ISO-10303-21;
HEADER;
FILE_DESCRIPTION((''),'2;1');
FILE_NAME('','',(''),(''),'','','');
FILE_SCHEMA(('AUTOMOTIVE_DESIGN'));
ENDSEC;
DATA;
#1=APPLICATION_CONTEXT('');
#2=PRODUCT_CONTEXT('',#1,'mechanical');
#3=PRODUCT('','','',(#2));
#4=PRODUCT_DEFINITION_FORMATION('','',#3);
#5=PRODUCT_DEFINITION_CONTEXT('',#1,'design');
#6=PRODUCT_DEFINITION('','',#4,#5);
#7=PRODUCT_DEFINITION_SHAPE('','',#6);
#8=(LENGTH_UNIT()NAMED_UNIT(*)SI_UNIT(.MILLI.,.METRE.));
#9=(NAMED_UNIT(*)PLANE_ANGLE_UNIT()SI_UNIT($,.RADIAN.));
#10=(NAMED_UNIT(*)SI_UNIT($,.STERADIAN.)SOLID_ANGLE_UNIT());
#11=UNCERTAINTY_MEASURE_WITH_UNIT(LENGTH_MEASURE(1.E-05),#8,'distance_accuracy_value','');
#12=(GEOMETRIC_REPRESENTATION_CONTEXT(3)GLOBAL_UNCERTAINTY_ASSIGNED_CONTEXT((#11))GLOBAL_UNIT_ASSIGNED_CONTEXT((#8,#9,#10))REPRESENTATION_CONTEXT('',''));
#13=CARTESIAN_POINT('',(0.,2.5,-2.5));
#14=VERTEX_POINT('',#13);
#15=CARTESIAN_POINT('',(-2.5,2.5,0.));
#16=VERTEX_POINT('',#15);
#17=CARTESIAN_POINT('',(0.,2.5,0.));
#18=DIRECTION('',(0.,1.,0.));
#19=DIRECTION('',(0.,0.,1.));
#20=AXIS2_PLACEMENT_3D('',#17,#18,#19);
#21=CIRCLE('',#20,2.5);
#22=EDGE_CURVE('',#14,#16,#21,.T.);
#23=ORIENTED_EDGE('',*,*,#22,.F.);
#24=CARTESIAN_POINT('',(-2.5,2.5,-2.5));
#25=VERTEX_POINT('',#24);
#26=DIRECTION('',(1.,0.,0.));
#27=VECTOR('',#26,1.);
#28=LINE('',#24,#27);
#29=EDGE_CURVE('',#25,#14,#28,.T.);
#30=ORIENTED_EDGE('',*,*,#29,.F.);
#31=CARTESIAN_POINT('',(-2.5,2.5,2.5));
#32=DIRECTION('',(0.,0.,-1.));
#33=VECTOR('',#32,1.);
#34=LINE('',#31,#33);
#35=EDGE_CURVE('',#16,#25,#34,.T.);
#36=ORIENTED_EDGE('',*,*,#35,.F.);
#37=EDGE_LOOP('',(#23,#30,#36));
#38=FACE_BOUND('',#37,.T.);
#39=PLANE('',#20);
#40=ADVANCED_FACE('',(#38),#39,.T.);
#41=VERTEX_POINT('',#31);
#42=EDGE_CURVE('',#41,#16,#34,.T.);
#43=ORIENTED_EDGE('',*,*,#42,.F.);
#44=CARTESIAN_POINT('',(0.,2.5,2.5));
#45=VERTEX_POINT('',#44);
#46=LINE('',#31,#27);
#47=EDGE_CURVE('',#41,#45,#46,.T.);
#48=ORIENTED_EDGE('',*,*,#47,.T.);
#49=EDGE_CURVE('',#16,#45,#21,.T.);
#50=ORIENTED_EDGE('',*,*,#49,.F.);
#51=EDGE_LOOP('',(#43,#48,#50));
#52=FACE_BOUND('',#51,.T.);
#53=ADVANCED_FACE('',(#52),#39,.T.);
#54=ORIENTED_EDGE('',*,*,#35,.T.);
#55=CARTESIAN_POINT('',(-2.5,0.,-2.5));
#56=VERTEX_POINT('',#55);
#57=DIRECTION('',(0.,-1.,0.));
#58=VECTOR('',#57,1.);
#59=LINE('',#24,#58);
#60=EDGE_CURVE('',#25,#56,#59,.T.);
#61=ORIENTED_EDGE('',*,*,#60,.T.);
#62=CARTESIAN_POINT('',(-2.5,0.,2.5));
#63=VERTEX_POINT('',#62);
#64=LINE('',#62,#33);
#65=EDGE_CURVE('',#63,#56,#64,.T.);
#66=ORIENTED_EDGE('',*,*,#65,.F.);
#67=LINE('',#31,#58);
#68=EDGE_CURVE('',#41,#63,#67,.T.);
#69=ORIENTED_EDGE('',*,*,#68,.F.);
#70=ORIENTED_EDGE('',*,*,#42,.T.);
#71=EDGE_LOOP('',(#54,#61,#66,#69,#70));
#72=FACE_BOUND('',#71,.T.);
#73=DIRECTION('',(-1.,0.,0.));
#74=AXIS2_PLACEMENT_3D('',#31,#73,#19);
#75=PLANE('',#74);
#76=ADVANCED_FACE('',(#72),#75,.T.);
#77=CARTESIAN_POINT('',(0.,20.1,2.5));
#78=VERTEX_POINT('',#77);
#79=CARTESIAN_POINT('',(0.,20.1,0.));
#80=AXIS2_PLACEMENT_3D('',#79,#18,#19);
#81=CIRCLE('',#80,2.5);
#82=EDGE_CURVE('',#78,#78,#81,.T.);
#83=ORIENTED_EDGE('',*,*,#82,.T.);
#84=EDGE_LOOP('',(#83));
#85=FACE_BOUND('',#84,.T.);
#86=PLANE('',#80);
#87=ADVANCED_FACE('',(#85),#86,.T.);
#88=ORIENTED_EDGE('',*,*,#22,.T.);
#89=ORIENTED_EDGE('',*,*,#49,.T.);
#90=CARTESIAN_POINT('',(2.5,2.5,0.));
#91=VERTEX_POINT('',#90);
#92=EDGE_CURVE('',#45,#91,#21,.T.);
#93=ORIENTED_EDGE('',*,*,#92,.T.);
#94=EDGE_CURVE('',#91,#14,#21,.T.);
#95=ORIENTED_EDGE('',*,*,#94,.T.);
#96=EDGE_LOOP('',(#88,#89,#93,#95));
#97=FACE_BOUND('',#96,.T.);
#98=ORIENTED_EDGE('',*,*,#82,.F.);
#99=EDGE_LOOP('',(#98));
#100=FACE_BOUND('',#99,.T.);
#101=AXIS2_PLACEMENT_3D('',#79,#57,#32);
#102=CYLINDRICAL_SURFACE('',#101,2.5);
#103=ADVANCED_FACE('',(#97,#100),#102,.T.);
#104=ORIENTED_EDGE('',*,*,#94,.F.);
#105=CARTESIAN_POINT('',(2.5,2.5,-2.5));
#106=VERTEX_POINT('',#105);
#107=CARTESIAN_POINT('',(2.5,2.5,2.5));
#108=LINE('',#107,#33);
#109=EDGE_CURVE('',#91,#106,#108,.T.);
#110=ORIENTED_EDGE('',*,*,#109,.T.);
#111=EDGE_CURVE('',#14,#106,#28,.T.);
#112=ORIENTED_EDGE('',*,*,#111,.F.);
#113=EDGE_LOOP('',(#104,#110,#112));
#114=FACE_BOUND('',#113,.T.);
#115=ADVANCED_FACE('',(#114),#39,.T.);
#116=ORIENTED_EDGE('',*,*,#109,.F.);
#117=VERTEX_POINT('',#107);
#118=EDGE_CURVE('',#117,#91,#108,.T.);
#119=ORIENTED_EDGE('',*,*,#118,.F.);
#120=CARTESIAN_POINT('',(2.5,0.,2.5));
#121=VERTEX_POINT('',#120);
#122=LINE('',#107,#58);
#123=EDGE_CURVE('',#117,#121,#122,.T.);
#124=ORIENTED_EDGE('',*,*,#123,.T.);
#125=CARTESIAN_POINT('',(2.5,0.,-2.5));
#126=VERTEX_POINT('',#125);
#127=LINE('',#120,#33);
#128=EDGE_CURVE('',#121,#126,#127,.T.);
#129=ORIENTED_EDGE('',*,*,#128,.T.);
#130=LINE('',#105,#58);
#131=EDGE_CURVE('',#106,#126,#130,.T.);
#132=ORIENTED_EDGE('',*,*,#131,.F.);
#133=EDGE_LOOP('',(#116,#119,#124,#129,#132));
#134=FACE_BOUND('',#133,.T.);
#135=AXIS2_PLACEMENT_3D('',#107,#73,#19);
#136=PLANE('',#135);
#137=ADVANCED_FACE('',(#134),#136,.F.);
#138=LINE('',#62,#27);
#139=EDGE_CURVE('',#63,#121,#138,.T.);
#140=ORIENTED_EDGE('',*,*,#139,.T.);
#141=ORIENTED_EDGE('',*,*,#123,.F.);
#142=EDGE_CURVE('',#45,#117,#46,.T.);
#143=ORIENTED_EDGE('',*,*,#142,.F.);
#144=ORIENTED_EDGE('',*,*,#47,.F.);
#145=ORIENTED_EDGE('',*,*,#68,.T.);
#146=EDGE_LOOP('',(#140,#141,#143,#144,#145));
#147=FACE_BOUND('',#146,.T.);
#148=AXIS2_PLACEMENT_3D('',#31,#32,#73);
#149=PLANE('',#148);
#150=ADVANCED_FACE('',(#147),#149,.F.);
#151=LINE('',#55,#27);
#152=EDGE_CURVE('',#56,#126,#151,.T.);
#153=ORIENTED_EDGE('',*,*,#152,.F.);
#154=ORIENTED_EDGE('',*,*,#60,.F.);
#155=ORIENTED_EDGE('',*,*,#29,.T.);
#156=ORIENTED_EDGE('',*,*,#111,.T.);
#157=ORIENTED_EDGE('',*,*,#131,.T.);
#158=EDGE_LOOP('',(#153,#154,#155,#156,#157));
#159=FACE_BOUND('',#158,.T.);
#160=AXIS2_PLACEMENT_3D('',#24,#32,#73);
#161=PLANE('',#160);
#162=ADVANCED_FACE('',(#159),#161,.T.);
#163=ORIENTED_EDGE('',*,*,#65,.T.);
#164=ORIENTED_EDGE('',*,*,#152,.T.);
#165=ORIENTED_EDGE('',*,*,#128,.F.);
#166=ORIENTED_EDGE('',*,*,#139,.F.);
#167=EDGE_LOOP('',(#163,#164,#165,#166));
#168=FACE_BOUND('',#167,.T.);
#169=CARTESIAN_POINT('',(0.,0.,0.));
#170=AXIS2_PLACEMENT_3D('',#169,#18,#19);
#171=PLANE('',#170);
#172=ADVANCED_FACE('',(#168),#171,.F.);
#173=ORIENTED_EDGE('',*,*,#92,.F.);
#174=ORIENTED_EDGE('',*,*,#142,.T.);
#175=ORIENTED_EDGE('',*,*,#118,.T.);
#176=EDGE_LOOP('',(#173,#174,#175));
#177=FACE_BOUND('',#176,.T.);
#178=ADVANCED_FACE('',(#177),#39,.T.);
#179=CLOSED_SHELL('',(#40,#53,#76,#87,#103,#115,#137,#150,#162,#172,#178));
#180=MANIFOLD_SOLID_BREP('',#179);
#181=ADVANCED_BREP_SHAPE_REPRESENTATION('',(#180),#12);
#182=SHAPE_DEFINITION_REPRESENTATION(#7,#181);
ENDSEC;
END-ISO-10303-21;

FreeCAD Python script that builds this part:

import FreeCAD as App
import Part
import Sketcher
Q = App.Units.Quantity


def add_polygon(sketch, points):
    """Adds a closed chain of lines whose ends are joined by coincident constraints."""
    first, n = sketch.GeometryCount, len(points)
    for a, b in zip(points, points[1:] + points[:1]):
        sketch.addGeometry(Part.LineSegment(App.Vector(*a, 0), App.Vector(*b, 0)), False)
    for i in range(n):
        sketch.addConstraint(Sketcher.Constraint("Coincident", first + i, 2, first + (i + 1) % n, 1))

doc = App.newDocument("Part")
params = doc.addObject("Spreadsheet::Sheet", "Params")
for row, (alias, value) in enumerate([
    ("sketch1_width", "5 mm"),
    ("pad1_length", "2.5 mm"),
    ("sketch2_diameter", "5 mm"),
    ("pad2_length", "17.6 mm"),
], start=1):
    params.set(f"A{row}", alias)
    params.set(f"B{row}", "=" + value)
    params.setAlias(f"B{row}", alias)

body = doc.addObject("PartDesign::Body", "Body")

# Sketch on XZ plane
sketch1 = doc.addObject("Sketcher::SketchObject", "Sketch")
body.addObject(sketch1)
sketch1.AttachmentSupport = (doc.XZ_Plane, [""])
sketch1.MapMode = "FlatFace"
add_polygon(sketch1, [(-2, -2), (-2, 2), (2, 2), (2, -2)])  # lines 0-3
sketch1.addConstraint([
    Sketcher.Constraint("Vertical", 0),
    Sketcher.Constraint("Horizontal", 1),
    Sketcher.Constraint("Vertical", 2),
    Sketcher.Constraint("Horizontal", 3),
    Sketcher.Constraint("Symmetric", 0, 2, 2, 2, -1, 1),
    Sketcher.Constraint("Equal", 3, 0),
    Sketcher.Constraint("DistanceX", 1, 1, 1, 2, Q("5 mm")),
])
sketch1.setExpression("Constraints[10]", "Params.sketch1_width")
pad1 = doc.addObject("PartDesign::Pad", "Pad")
body.addObject(pad1)
pad1.Profile = sketch1
pad1.setExpression("Length", "Params.pad1_length")
pad1.Reversed = True

# Sketch on XZ plane
sketch2 = doc.addObject("Sketcher::SketchObject", "Sketch001")
body.addObject(sketch2)
sketch2.AttachmentSupport = (doc.XZ_Plane, [""])
sketch2.MapMode = "FlatFace"
sketch2.AttachmentOffset = App.Placement(App.Vector(0, 0, -2.5), App.Rotation())
sketch2.addGeometry(Part.Circle(App.Vector(0, 0, 0), App.Vector(0, 0, 1), 2.5), False)
sketch2.addConstraint([
    Sketcher.Constraint("Coincident", 0, 3, -1, 1),
    Sketcher.Constraint("Diameter", 0, Q("5 mm")),
])
sketch2.setExpression("Constraints[1]", "Params.sketch2_diameter")
pad2 = doc.addObject("PartDesign::Pad", "Pad001")
body.addObject(pad2)
pad2.Profile = sketch2
pad2.setExpression("Length", "Params.pad2_length")
pad2.Reversed = True

doc.recompute()
